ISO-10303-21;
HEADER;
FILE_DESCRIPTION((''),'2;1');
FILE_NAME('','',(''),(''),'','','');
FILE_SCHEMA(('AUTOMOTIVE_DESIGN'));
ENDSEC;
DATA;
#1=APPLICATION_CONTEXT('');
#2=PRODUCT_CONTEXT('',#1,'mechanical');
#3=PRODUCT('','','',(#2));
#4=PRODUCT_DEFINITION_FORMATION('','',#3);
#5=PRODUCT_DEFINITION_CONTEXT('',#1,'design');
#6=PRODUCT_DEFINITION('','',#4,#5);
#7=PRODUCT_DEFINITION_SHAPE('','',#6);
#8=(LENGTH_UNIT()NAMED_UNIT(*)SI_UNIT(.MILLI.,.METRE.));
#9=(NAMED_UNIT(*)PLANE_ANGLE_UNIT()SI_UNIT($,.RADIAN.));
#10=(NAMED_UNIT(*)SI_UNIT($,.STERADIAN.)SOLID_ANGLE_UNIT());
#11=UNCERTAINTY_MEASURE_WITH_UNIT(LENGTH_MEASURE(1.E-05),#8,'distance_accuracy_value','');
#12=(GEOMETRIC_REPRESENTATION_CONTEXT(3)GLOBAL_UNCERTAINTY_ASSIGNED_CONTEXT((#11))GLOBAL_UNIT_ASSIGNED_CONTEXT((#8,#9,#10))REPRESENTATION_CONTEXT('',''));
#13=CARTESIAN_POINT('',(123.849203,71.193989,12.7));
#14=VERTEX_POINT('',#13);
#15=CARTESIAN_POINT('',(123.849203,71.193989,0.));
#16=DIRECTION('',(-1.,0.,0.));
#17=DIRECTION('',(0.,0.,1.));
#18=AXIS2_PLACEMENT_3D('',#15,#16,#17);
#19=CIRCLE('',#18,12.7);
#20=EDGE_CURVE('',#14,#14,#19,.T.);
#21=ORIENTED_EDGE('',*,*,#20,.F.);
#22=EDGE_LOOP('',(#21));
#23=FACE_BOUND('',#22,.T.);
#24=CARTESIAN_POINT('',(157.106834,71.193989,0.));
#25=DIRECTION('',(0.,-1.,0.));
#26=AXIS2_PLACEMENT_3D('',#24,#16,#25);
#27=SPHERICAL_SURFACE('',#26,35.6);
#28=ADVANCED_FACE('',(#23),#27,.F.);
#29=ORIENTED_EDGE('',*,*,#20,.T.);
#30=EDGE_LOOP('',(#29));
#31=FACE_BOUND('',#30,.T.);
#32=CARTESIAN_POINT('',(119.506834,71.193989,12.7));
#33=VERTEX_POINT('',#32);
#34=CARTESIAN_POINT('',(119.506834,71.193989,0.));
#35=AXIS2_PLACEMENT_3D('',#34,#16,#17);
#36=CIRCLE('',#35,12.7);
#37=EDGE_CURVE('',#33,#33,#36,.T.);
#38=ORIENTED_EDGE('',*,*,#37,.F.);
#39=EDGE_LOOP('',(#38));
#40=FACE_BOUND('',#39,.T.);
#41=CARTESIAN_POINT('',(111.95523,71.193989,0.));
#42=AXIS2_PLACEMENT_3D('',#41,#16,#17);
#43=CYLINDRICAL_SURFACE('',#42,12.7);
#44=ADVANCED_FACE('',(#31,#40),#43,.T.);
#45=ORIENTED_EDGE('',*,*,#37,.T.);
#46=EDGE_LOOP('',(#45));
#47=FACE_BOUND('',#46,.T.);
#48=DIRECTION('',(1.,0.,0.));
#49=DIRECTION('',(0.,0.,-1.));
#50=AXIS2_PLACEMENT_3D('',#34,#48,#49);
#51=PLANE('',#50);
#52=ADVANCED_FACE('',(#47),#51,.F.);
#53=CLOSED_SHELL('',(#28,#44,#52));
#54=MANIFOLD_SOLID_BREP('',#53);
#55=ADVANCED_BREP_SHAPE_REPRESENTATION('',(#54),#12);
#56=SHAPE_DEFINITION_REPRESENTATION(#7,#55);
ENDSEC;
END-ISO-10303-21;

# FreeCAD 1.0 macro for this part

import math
import FreeCAD as App
import Part
import Sketcher

doc = App.newDocument("Part")
params = doc.addObject("Spreadsheet::Sheet", "Params")
for row, (alias, value) in enumerate([
    ("sketch1_radius", "35.6 mm"),
    ("sketch1_width", "2 mm"),
    ("sketch1_height", "12.7 mm"),
    ("revolution_angle", "360 deg"),
], start=1):
    params.set(f"A{row}", alias)
    params.set(f"B{row}", "=" + value)
    params.setAlias(f"B{row}", alias)

body = doc.addObject("PartDesign::Body", "Body")

# Sketch on XY plane
sketch1 = body.newObject("Sketcher::SketchObject", "Sketch")
sketch1.AttachmentSupport = (doc.getObject("XY_Plane"), [""])
sketch1.MapMode = "FlatFace"
sketch1.addGeometry([
    Part.LineSegment(App.Vector(119.5, 83.9, 0), App.Vector(119.5, 71.2, 0)),
    Part.LineSegment(App.Vector(119.5, 71.2, 0), App.Vector(121.5, 71.2, 0)),
    Part.ArcOfCircle(Part.Circle(App.Vector(157.1, 71.2, 0), App.Vector(0, 0, 1), 35.6), math.radians(159), math.radians(180)),
    Part.LineSegment(App.Vector(123.8, 83.9, 0), App.Vector(119.5, 83.9, 0)),
], False)
sketch1.addGeometry(Part.LineSegment(App.Vector(119.5, 71.2, 0), App.Vector(157.1, 71.2, 0)), True)  # axis
sketch1.addConstraint([
    Sketcher.Constraint("Coincident", 0, 2, 1, 1),
    Sketcher.Constraint("Coincident", 1, 2, 2, 2),
    Sketcher.Constraint("Coincident", 2, 1, 3, 1),
    Sketcher.Constraint("Coincident", 3, 2, 0, 1),
    Sketcher.Constraint("Vertical", 0),
    Sketcher.Constraint("Horizontal", 1),
    Sketcher.Constraint("Horizontal", 3),
    Sketcher.Constraint("Horizontal", 4),
    Sketcher.Constraint("Coincident", 4, 1, 0, 2),
    Sketcher.Constraint("Coincident", 4, 2, 2, 3),
    Sketcher.Constraint("Radius", 2, 35.6),
    Sketcher.Constraint("DistanceX", 1, 1, 1, 2, 2.0),
    Sketcher.Constraint("DistanceY", 0, 2, 0, 1, 12.7),
    Sketcher.Constraint("DistanceY", -1, 1, 2, 3, 71.193989),
    Sketcher.Constraint("DistanceX", -1, 1, 2, 3, 157.106834),
])
sketch1.setExpression("Constraints[10]", "Params.sketch1_radius")
sketch1.setExpression("Constraints[11]", "Params.sketch1_width")
sketch1.setExpression("Constraints[12]", "Params.sketch1_height")
revolution = body.newObject("PartDesign::Revolution", "Revolution")
revolution.Profile = sketch1
revolution.ReferenceAxis = (sketch1, ["Axis0"])
revolution.setExpression("Angle", "Params.revolution_angle")

doc.recompute()
